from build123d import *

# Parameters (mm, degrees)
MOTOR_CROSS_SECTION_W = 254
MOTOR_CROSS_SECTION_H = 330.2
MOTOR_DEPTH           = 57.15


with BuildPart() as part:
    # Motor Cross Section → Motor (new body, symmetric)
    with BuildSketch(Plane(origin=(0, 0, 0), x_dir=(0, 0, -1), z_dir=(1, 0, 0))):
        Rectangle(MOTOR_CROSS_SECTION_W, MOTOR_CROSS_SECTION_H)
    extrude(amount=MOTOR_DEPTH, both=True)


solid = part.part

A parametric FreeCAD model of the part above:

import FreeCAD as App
import Part
import Sketcher
from FreeCAD import Vector
Q = App.Units.Quantity

doc = App.newDocument("Part")
body = doc.addObject("PartDesign::Body", "Body")

# Sketch on YZ plane
sketch1 = body.newObject("Sketcher::SketchObject", "Sketch")
sketch1.AttachmentSupport = (doc.getObject("YZ_Plane"), [""])
sketch1.MapMode = "FlatFace"
sketch1.addGeometry(Part.LineSegment(Vector(165.1, 127, 0), Vector(-165.1, 127, 0)), False)
sketch1.addGeometry(Part.LineSegment(Vector(-165.1, 127, 0), Vector(-165.1, -127, 0)), False)
sketch1.addGeometry(Part.LineSegment(Vector(-165.1, -127, 0), Vector(165.1, -127, 0)), False)
sketch1.addGeometry(Part.LineSegment(Vector(165.1, -127, 0), Vector(165.1, 127, 0)), False)
sketch1.addConstraint(Sketcher.Constraint("Coincident", 0, 2, 1, 1))
sketch1.addConstraint(Sketcher.Constraint("Coincident", 1, 2, 2, 1))
sketch1.addConstraint(Sketcher.Constraint("Coincident", 2, 2, 3, 1))
sketch1.addConstraint(Sketcher.Constraint("Coincident", 3, 2, 0, 1))
sketch1.addConstraint(Sketcher.Constraint("Horizontal", 0))
sketch1.addConstraint(Sketcher.Constraint("Vertical", 1))
sketch1.addConstraint(Sketcher.Constraint("Horizontal", 2))
sketch1.addConstraint(Sketcher.Constraint("Vertical", 3))
sketch1.addConstraint(Sketcher.Constraint("Symmetric", 0, 2, 2, 2, -1, 1))
sketch1.addConstraint(Sketcher.Constraint("DistanceX", 0, 2, 0, 1, Q("13 in")))
sketch1.addConstraint(Sketcher.Constraint("DistanceY", 1, 2, 1, 1, Q("10 in")))
pad1 = body.newObject("PartDesign::Pad", "Pad")
pad1.Profile = sketch1
pad1.Length = Q("4.5 in")
pad1.Midplane = True

doc.recompute()
